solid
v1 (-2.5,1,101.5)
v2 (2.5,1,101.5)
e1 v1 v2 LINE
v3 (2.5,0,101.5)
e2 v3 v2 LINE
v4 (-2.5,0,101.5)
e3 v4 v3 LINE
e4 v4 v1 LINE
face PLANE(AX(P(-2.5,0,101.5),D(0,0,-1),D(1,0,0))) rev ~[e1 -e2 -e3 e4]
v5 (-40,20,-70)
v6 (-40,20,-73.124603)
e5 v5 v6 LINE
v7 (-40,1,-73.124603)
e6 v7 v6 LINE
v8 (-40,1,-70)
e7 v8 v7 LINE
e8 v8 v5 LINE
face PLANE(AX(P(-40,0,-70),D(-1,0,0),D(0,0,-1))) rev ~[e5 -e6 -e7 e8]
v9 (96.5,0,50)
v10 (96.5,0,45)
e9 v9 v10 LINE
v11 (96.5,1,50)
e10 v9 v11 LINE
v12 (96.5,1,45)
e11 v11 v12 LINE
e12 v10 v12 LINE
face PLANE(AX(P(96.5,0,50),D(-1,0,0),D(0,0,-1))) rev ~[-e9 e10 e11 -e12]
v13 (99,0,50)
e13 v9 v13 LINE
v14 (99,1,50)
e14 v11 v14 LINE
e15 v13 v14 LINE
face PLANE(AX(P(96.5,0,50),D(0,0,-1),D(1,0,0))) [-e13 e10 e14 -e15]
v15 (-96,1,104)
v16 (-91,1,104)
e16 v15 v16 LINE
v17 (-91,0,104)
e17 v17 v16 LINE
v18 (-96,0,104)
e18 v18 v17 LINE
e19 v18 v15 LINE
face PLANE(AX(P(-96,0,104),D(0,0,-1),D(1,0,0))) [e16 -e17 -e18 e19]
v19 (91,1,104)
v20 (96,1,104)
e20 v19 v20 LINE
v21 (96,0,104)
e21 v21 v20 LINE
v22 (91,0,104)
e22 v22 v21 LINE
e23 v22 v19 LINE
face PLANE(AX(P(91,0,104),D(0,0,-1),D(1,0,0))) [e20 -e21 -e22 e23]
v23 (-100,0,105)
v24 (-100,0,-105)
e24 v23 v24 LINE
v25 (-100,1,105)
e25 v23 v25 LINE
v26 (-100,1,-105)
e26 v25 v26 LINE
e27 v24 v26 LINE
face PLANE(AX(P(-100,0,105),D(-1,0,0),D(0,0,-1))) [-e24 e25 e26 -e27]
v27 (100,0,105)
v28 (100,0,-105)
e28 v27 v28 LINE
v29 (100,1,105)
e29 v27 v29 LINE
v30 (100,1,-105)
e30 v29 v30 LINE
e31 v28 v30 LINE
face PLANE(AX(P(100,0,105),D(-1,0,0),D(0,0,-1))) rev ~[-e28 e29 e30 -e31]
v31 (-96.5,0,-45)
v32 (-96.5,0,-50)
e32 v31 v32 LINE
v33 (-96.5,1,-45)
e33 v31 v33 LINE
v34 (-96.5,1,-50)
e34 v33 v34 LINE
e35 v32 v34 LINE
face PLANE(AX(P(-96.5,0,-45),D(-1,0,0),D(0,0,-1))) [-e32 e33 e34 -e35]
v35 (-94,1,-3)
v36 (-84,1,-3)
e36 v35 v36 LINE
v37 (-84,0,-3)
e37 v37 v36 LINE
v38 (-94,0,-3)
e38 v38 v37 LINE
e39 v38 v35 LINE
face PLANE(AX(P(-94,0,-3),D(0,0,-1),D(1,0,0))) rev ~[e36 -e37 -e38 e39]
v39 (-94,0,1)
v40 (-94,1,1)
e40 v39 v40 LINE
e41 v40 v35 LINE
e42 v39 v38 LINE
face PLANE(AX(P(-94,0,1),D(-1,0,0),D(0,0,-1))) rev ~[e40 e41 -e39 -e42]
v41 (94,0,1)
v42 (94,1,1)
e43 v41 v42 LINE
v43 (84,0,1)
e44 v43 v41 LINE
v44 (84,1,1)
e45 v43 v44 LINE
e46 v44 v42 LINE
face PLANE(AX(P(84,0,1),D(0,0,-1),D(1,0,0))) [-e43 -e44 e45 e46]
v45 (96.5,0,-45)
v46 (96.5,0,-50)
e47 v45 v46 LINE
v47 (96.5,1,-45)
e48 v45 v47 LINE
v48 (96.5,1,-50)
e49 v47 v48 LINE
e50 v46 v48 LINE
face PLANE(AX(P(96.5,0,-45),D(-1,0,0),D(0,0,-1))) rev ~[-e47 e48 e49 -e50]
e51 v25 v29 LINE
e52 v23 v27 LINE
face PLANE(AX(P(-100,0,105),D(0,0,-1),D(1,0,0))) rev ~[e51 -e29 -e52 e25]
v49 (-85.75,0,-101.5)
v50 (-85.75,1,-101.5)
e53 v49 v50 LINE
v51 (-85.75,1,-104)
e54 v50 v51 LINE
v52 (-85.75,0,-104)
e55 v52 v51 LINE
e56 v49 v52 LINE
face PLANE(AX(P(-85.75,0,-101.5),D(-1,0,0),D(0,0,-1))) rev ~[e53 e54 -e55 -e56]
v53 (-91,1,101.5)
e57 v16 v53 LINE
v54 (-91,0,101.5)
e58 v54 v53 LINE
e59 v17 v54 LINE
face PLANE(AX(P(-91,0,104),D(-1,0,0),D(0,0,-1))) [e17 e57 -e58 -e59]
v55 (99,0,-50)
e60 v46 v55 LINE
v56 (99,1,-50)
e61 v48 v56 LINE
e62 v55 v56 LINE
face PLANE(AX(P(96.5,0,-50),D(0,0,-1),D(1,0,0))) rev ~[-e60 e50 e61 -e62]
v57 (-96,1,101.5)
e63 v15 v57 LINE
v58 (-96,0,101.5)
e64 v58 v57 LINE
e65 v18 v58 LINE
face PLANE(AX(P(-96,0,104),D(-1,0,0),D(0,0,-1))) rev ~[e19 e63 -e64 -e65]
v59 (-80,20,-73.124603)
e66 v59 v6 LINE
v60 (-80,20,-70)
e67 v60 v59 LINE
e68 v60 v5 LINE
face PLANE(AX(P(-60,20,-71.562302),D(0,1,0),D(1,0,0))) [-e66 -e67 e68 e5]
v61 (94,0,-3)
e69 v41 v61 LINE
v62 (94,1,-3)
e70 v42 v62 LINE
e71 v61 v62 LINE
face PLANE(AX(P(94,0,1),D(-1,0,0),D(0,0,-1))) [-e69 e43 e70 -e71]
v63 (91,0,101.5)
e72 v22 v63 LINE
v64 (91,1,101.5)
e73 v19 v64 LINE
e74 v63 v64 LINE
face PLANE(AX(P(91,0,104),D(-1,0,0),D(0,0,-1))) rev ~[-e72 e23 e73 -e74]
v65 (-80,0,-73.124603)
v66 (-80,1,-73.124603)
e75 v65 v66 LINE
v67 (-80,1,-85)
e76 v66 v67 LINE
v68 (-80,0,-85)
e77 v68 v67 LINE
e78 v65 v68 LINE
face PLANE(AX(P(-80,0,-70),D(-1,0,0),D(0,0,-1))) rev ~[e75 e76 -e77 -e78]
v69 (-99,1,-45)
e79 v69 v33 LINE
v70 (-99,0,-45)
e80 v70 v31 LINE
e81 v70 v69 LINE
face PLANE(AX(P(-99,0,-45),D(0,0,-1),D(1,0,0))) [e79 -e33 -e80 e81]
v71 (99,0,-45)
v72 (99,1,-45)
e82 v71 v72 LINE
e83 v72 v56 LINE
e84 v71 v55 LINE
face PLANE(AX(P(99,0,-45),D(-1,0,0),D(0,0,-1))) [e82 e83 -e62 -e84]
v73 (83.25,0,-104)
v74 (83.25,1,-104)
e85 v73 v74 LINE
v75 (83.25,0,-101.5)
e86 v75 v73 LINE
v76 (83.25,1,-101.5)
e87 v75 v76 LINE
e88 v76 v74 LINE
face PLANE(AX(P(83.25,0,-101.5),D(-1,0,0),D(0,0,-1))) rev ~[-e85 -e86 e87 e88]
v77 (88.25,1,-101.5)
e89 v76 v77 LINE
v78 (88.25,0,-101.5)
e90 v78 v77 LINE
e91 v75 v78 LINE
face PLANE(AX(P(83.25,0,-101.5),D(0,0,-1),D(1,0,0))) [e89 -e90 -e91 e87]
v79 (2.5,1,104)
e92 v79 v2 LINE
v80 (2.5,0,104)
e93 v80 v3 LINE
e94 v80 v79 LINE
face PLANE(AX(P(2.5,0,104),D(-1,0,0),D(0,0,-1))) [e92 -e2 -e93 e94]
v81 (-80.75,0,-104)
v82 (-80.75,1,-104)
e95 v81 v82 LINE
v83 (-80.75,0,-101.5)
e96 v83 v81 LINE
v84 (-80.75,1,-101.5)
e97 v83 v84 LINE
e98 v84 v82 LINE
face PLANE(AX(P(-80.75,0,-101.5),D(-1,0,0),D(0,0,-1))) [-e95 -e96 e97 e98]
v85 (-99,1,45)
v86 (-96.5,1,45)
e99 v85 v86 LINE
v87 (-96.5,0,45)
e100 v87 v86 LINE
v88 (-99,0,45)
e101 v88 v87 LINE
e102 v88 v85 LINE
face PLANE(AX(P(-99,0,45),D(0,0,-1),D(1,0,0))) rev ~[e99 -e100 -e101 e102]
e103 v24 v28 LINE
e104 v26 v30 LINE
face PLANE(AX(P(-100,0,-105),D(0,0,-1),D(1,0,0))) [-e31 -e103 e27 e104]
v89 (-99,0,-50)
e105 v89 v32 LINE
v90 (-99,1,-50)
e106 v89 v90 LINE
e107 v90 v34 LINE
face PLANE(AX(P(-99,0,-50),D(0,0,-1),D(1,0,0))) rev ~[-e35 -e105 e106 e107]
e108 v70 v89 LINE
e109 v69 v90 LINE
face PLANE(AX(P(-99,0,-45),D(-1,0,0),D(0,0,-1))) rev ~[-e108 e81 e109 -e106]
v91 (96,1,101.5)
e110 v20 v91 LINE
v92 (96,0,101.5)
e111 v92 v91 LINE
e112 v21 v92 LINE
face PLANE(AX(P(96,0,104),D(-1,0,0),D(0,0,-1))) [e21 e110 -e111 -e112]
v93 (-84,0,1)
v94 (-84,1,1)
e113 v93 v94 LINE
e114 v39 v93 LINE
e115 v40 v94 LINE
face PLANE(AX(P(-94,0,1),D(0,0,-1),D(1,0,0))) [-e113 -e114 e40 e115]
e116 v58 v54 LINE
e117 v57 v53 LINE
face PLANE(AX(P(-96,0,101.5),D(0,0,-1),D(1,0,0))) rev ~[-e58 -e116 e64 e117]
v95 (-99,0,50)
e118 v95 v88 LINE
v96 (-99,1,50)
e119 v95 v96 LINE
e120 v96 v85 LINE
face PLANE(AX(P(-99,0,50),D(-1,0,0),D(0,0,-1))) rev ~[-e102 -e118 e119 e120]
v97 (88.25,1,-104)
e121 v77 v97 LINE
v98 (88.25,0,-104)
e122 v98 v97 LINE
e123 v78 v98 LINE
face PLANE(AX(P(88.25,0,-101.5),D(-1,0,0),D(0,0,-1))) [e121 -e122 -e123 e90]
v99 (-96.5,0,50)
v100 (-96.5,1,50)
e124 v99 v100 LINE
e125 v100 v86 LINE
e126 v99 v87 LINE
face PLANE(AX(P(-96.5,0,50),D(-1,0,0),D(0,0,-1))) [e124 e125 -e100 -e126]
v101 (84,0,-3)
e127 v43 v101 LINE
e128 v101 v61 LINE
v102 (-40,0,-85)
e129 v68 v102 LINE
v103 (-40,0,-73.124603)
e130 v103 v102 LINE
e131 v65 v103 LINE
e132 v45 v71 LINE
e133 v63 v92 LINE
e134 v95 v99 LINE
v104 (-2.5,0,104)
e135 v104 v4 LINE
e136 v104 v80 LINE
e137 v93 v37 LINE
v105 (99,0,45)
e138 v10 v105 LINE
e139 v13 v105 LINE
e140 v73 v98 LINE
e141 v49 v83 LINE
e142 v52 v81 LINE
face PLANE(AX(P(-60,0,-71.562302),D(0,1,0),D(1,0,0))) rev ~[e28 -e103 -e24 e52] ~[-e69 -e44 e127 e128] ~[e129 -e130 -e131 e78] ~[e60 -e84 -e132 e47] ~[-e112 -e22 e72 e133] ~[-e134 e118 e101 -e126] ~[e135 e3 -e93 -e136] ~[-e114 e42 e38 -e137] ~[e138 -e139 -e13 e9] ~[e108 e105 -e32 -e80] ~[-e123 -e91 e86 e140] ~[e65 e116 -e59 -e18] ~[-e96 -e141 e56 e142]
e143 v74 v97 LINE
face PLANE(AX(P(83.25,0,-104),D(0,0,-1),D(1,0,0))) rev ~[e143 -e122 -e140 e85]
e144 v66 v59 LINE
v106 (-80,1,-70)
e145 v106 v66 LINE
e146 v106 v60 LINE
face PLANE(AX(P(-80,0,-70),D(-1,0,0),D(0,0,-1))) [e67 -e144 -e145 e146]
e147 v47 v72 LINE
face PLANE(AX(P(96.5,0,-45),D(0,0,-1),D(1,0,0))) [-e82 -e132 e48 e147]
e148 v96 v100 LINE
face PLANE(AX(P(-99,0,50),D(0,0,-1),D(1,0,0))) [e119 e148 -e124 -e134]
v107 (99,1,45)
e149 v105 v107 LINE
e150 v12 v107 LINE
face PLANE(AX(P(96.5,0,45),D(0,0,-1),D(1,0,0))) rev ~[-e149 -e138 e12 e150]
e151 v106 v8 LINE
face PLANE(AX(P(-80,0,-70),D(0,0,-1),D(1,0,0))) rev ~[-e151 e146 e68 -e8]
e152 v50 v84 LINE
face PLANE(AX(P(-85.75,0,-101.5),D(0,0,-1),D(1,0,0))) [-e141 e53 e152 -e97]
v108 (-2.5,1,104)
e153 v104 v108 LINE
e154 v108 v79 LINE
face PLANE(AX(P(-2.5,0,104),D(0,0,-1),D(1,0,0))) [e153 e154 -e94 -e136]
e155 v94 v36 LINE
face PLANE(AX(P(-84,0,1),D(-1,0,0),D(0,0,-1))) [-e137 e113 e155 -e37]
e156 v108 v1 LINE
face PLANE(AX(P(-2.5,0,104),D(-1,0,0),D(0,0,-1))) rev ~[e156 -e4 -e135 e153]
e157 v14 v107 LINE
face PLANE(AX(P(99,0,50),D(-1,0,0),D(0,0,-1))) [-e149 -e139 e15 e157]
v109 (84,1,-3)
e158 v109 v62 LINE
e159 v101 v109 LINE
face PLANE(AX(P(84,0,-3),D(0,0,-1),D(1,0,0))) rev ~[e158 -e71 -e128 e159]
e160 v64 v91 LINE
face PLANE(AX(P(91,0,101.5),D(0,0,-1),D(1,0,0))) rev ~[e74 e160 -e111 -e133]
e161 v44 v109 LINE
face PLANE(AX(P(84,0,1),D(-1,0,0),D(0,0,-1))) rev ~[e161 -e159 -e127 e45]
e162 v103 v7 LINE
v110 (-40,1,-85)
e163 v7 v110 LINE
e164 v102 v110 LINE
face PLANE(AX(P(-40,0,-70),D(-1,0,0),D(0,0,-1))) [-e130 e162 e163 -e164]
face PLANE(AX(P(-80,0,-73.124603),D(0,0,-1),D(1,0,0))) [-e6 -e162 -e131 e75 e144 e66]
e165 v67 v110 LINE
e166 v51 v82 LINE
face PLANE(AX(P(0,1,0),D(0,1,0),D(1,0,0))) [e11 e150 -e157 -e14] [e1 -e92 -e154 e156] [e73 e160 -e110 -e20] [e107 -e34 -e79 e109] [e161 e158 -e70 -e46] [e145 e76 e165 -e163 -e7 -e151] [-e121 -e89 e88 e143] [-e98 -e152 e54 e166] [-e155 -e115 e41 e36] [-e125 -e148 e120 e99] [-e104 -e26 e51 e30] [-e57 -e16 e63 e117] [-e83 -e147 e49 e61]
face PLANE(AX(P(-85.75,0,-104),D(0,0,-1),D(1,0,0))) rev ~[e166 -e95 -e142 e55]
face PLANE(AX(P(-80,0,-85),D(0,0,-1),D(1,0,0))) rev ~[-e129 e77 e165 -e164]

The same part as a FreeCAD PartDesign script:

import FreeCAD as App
import Part
import Sketcher
from FreeCAD import Vector


def add_polygon(sketch, points):
    """Adds a closed chain of lines whose ends are joined by coincident constraints."""
    first, n = sketch.GeometryCount, len(points)
    for a, b in zip(points, points[1:] + points[:1]):
        sketch.addGeometry(Part.LineSegment(App.Vector(*a, 0), App.Vector(*b, 0)), False)
    for i in range(n):
        sketch.addConstraint(Sketcher.Constraint("Coincident", first + i, 2, first + (i + 1) % n, 1))

doc = App.newDocument("Part")
params = doc.addObject("Spreadsheet::Sheet", "Params")
for row, (alias, value) in enumerate([
    ("sketch1_width", "200 mm"),
    ("sketch1_width2", "5 mm"),
    ("sketch1_width3", "10 mm"),
    ("sketch1_width4", "40 mm"),
    ("sketch1_height", "210 mm"),
    ("pad1_length", "1 mm"),
    ("sketch2_width", "40 mm"),
    ("pad2_length", "20 mm"),
], start=1):
    params.set(f"A{row}", alias)
    params.set(f"B{row}", "=" + value)
    params.setAlias(f"B{row}", alias)

body = doc.addObject("PartDesign::Body", "Body")

# Sketch on XZ plane
sketch1 = body.newObject("Sketcher::SketchObject", "Sketch")
sketch1.AttachmentSupport = (doc.getObject("XZ_Plane"), [""])
sketch1.MapMode = "FlatFace"
add_polygon(sketch1, [(-100, -105), (-100, 105), (100, 105), (100, -105)])  # lines 0-3
add_polygon(sketch1, [(-91, 104), (-96, 104), (-96, 101.5), (-91, 101.5)])  # lines 4-7
add_polygon(sketch1, [(-96.5, 50), (-99, 50), (-99, 45), (-96.5, 45)])  # lines 8-11
add_polygon(sketch1, [(2.5, 104), (-2.5, 104), (-2.5, 101.5), (2.5, 101.5)])  # lines 12-15
add_polygon(sketch1, [(96, 104), (91, 104), (91, 101.5), (96, 101.5)])  # lines 16-19
add_polygon(sketch1, [(99, 50), (96.5, 50), (96.5, 45), (99, 45)])  # lines 20-23
add_polygon(sketch1, [(-84, 1), (-94, 1), (-94, -3), (-84, -3)])  # lines 24-27
add_polygon(sketch1, [(-96.5, -45), (-99, -45), (-99, -50), (-96.5, -50)])  # lines 28-31
add_polygon(sketch1, [(-40, -70), (-80, -70), (-80, -85), (-40, -85)])  # lines 32-35
add_polygon(sketch1, [(-80.8, -101.5), (-85.8, -101.5), (-85.8, -104), (-80.8, -104)])  # lines 36-39
add_polygon(sketch1, [(94, 1), (84, 1), (84, -3), (94, -3)])  # lines 40-43
add_polygon(sketch1, [(99, -45), (96.5, -45), (96.5, -50), (99, -50)])  # lines 44-47
add_polygon(sketch1, [(88.2, -101.5), (83.2, -101.5), (83.2, -104), (88.2, -104)])  # lines 48-51
sketch1.addConstraint([
    Sketcher.Constraint("Vertical", 0),
    Sketcher.Constraint("Horizontal", 1),
    Sketcher.Constraint("Vertical", 2),
    Sketcher.Constraint("Horizontal", 3),
    Sketcher.Constraint("Horizontal", 4),
    Sketcher.Constraint("Vertical", 5),
    Sketcher.Constraint("Horizontal", 6),
    Sketcher.Constraint("Vertical", 7),
    Sketcher.Constraint("Horizontal", 8),
    Sketcher.Constraint("Vertical", 9),
    Sketcher.Constraint("Horizontal", 10),
    Sketcher.Constraint("Vertical", 11),
    Sketcher.Constraint("Horizontal", 12),
    Sketcher.Constraint("Vertical", 13),
    Sketcher.Constraint("Horizontal", 14),
    Sketcher.Constraint("Vertical", 15),
    Sketcher.Constraint("Horizontal", 16),
    Sketcher.Constraint("Vertical", 17),
    Sketcher.Constraint("Horizontal", 18),
    Sketcher.Constraint("Vertical", 19),
    Sketcher.Constraint("Horizontal", 20),
    Sketcher.Constraint("Vertical", 21),
    Sketcher.Constraint("Horizontal", 22),
    Sketcher.Constraint("Vertical", 23),
    Sketcher.Constraint("Horizontal", 24),
    Sketcher.Constraint("Vertical", 25),
    Sketcher.Constraint("Horizontal", 26),
    Sketcher.Constraint("Vertical", 27),
    Sketcher.Constraint("Horizontal", 28),
    Sketcher.Constraint("Vertical", 29),
    Sketcher.Constraint("Horizontal", 30),
    Sketcher.Constraint("Vertical", 31),
    Sketcher.Constraint("Horizontal", 32),
    Sketcher.Constraint("Vertical", 33),
    Sketcher.Constraint("Horizontal", 34),
    Sketcher.Constraint("Vertical", 35),
    Sketcher.Constraint("Horizontal", 36),
    Sketcher.Constraint("Vertical", 37),
    Sketcher.Constraint("Horizontal", 38),
    Sketcher.Constraint("Vertical", 39),
    Sketcher.Constraint("Horizontal", 40),
    Sketcher.Constraint("Vertical", 41),
    Sketcher.Constraint("Horizontal", 42),
    Sketcher.Constraint("Vertical", 43),
    Sketcher.Constraint("Horizontal", 44),
    Sketcher.Constraint("Vertical", 45),
    Sketcher.Constraint("Horizontal", 46),
    Sketcher.Constraint("Vertical", 47),
    Sketcher.Constraint("Horizontal", 48),
    Sketcher.Constraint("Vertical", 49),
    Sketcher.Constraint("Horizontal", 50),
    Sketcher.Constraint("Vertical", 51),
    Sketcher.Constraint("Symmetric", 0, 2, 2, 2, -1, 1),
    Sketcher.Constraint("Symmetric", 22, 2, 28, 2, -1, 1),
    Sketcher.Constraint("Symmetric", 20, 2, 30, 2, -1, 1),
    Sketcher.Constraint("Symmetric", 10, 2, 44, 2, -1, 1),
    Sketcher.Constraint("Symmetric", 8, 2, 46, 2, -1, 1),
    Sketcher.Constraint("Symmetric", 7, 2, 16, 2, -2),
    Sketcher.Constraint("Symmetric", 5, 2, 18, 2, -2),
    Sketcher.Constraint("Symmetric", 11, 2, 20, 2, -2),
    Sketcher.Constraint("Symmetric", 9, 2, 22, 2, -2),
    Sketcher.Constraint("Symmetric", 27, 2, 40, 2, -2),
    Sketcher.Constraint("Symmetric", 25, 2, 42, 2, -2),
    Sketcher.Constraint("Horizontal", 7, 2, 12, 2),
    Sketcher.Constraint("Horizontal", 6, 2, 13, 2),
    Sketcher.Constraint("Horizontal", 39, 2, 48, 2),
    Sketcher.Constraint("Horizontal", 38, 2, 49, 2),
    Sketcher.Constraint("Equal", 6, 12),
    Sketcher.Constraint("Equal", 18, 36),
    Sketcher.Constraint("Equal", 38, 48),
    Sketcher.Constraint("Equal", 46, 5),
    Sketcher.Constraint("Equal", 50, 9),
    Sketcher.Constraint("Equal", 19, 37),
    Sketcher.Constraint("DistanceX", 1, 1, 1, 2, 200.0),
    Sketcher.Constraint("DistanceX", 4, 2, 4, 1, 5.0),
    Sketcher.Constraint("DistanceX", 24, 2, 24, 1, 10.0),
    Sketcher.Constraint("DistanceX", 32, 2, 32, 1, 40.0),
    Sketcher.Constraint("DistanceY", 0, 1, 0, 2, 210.0),
    Sketcher.Constraint("DistanceY", 25, 2, 25, 1, 4.0),
    Sketcher.Constraint("DistanceY", 33, 2, 33, 1, 15.0),
    Sketcher.Constraint("DistanceX", 8, 2, 8, 1, 2.5),
    Sketcher.Constraint("DistanceX", 4, 2, -1, 1, 96.0),
    Sketcher.Constraint("DistanceY", -1, 1, 4, 2, 104.0),
    Sketcher.Constraint("DistanceX", 8, 2, -1, 1, 99.0),
    Sketcher.Constraint("DistanceY", -1, 1, 8, 2, 50.0),
    Sketcher.Constraint("DistanceX", 24, 2, -1, 1, 94.0),
    Sketcher.Constraint("DistanceY", -1, 1, 24, 2, 1.0),
    Sketcher.Constraint("DistanceX", 32, 2, -1, 1, 80.0),
    Sketcher.Constraint("DistanceY", 32, 2, -1, 1, 70.0),
    Sketcher.Constraint("DistanceY", 37, 2, -1, 1, 104.0),
    Sketcher.Constraint("DistanceX", 12, 2, -1, 1, 2.5),
    Sketcher.Constraint("DistanceX", 36, 2, -1, 1, 85.75),
    Sketcher.Constraint("DistanceX", -1, 1, 48, 2, 83.25),
])
sketch1.setExpression("Constraints[125]", "Params.sketch1_width")
sketch1.setExpression("Constraints[126]", "Params.sketch1_width2")
sketch1.setExpression("Constraints[127]", "Params.sketch1_width3")
sketch1.setExpression("Constraints[128]", "Params.sketch1_width4")
sketch1.setExpression("Constraints[129]", "Params.sketch1_height")
pad1 = body.newObject("PartDesign::Pad", "Pad")
pad1.Profile = sketch1
pad1.setExpression("Length", "Params.pad1_length")
pad1.Reversed = True

# Sketch on XZ plane
sketch2 = body.newObject("Sketcher::SketchObject", "Sketch001")
sketch2.AttachmentSupport = (doc.getObject("XZ_Plane"), [""])
sketch2.MapMode = "FlatFace"
add_polygon(sketch2, [(-80, -73.1), (-80, -70), (-40, -70), (-40, -73.1)])  # lines 0-3
sketch2.addConstraint([
    Sketcher.Constraint("Vertical", 0),
    Sketcher.Constraint("Horizontal", 1),
    Sketcher.Constraint("Vertical", 2),
    Sketcher.Constraint("Horizontal", 3),
    Sketcher.Constraint("DistanceX", 1, 1, 1, 2, 40.0),
    Sketcher.Constraint("DistanceX", 0, 2, -1, 1, 80.0),
    Sketcher.Constraint("DistanceY", 0, 2, -1, 1, 70.0),
    Sketcher.Constraint("DistanceY", 0, 1, 0, 2, 3.124603),
])
sketch2.setExpression("Constraints[8]", "Params.sketch2_width")
pad2 = body.newObject("PartDesign::Pad", "Pad001")
pad2.Profile = sketch2
pad2.setExpression("Length", "Params.pad2_length")
pad2.Reversed = True

doc.recompute()
